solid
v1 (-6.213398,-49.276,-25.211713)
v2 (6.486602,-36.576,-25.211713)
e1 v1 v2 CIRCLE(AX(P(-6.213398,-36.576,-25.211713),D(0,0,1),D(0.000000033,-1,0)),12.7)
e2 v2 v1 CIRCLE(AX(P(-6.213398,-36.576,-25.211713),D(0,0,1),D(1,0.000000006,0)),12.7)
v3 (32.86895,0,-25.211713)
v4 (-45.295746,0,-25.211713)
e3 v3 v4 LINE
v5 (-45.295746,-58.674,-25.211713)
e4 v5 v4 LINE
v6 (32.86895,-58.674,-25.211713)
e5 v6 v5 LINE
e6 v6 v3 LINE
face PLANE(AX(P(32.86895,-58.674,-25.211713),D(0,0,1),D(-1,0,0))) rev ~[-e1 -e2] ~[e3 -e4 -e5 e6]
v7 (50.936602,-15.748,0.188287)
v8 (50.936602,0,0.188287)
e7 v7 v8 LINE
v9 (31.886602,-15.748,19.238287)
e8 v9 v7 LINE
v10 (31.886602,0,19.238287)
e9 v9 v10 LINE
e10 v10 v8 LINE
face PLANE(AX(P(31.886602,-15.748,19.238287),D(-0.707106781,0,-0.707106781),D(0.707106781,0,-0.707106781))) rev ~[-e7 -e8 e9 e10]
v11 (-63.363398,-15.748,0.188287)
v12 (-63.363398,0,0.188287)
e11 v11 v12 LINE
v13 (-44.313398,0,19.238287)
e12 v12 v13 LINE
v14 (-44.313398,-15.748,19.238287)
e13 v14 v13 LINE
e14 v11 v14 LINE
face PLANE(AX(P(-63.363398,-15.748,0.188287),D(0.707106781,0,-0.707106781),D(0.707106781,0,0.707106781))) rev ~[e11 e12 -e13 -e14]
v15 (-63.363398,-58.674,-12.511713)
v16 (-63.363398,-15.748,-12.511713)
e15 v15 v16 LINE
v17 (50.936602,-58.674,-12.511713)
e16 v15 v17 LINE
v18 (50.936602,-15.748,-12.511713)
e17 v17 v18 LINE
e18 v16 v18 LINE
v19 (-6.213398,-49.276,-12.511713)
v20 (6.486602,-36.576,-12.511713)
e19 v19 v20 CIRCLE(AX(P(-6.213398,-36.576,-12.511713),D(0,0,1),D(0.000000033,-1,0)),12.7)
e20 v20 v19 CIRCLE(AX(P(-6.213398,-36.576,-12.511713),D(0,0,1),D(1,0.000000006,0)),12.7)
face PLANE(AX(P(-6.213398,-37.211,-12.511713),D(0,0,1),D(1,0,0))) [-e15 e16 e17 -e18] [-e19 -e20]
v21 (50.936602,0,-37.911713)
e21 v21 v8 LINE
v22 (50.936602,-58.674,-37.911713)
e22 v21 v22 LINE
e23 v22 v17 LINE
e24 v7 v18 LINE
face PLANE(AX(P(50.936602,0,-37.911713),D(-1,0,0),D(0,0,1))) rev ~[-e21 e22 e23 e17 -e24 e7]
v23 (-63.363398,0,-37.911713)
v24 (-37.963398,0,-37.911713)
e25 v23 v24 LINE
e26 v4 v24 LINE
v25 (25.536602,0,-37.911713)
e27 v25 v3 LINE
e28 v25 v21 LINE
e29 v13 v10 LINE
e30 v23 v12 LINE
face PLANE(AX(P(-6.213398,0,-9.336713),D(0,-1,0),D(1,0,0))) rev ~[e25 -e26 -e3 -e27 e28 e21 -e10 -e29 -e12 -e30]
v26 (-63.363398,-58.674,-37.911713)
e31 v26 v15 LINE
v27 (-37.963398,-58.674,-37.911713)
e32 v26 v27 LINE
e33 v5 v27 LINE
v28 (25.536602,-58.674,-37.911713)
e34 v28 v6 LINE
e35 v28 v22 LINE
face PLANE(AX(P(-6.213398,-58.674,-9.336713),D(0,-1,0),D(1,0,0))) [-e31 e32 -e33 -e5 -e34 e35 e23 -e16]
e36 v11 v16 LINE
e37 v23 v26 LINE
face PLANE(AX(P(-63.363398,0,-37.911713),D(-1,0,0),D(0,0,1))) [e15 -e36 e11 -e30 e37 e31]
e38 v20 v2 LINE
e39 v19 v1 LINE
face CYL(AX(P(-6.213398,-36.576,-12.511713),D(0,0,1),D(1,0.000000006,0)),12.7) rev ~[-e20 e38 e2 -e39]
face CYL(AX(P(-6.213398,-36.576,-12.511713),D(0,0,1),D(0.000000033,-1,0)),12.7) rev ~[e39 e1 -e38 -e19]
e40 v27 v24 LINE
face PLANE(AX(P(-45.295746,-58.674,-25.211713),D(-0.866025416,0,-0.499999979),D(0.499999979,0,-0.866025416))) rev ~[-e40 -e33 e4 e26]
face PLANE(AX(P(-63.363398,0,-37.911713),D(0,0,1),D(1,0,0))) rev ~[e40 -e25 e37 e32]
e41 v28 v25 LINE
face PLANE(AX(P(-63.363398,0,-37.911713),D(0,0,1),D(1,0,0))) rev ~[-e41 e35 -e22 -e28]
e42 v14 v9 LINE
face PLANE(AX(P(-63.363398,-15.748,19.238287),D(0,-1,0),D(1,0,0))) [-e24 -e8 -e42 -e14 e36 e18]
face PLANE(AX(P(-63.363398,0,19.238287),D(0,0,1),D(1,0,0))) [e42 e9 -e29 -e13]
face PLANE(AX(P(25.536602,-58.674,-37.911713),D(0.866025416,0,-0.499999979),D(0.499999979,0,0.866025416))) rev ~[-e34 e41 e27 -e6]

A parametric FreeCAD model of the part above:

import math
import FreeCAD as App
import Part
import Sketcher

V = App.Vector
Q = App.Units.Quantity


def add_polygon(sketch, points):
    """Adds a closed chain of lines whose ends are joined by coincident constraints."""
    first, n = sketch.GeometryCount, len(points)
    for a, b in zip(points, points[1:] + points[:1]):
        sketch.addGeometry(Part.LineSegment(App.Vector(*a, 0), App.Vector(*b, 0)), False)
    for i in range(n):
        sketch.addConstraint(Sketcher.Constraint("Coincident", first + i, 2, first + (i + 1) % n, 1))

doc = App.newDocument("Part")
body = doc.addObject("PartDesign::Body", "Body")

# Sketch on XZ plane
sketch1 = body.newObject("Sketcher::SketchObject", "Sketch")
sketch1.AttachmentSupport = (doc.getObject("XZ_Plane"), [""])
sketch1.MapMode = "FlatFace"
add_polygon(sketch1, [(-63, 19), (-63, -38), (51, -38), (51, 19)])  # lines 0-3
sketch1.addConstraint(Sketcher.Constraint("Vertical", 0))
sketch1.addConstraint(Sketcher.Constraint("Horizontal", 1))
sketch1.addConstraint(Sketcher.Constraint("Vertical", 2))
sketch1.addConstraint(Sketcher.Constraint("Horizontal", 3))
sketch1.addConstraint(Sketcher.Constraint("DistanceX", 1, 1, 1, 2, Q("4.5 in")))
sketch1.addConstraint(Sketcher.Constraint("DistanceY", 0, 2, 0, 1, Q("2.25 in")))
sketch1.addConstraint(Sketcher.Constraint("DistanceX", 0, 2, -1, 1, Q("63.363398 mm")))
sketch1.addConstraint(Sketcher.Constraint("DistanceY", 0, 2, -1, 1, Q("37.911713 mm")))
pad1 = body.newObject("PartDesign::Pad", "Pad")
pad1.Profile = sketch1
pad1.Length = Q("2.31 in")

# Sketch on XY plane
sketch2 = body.newObject("Sketcher::SketchObject", "Sketch001")
sketch2.AttachmentSupport = (doc.getObject("XY_Plane"), [""])
sketch2.MapMode = "FlatFace"
sketch2.AttachmentOffset = App.Placement(V(0, 0, 19.238287), App.Rotation())
add_polygon(sketch2, [(-63, -16), (-63, -59), (51, -59), (51, -16)])  # lines 0-3
sketch2.addConstraint(Sketcher.Constraint("Vertical", 0))
sketch2.addConstraint(Sketcher.Constraint("Horizontal", 1))
sketch2.addConstraint(Sketcher.Constraint("Vertical", 2))
sketch2.addConstraint(Sketcher.Constraint("Horizontal", 3))
sketch2.addConstraint(Sketcher.Constraint("DistanceX", 1, 1, 1, 2, Q("4.5 in")))
sketch2.addConstraint(Sketcher.Constraint("DistanceY", 0, 2, 0, 1, Q("1.69 in")))
sketch2.addConstraint(Sketcher.Constraint("DistanceY", 0, 2, -1, 1, Q("2.31 in")))
sketch2.addConstraint(Sketcher.Constraint("DistanceX", 0, 2, -1, 1, Q("63.363398 mm")))
pocket1 = body.newObject("PartDesign::Pocket", "Pocket")
pocket1.Profile = sketch2
pocket1.Length = Q("1.25 in")

# Sketch on XZ plane
sketch3 = body.newObject("Sketcher::SketchObject", "Sketch002")
sketch3.AttachmentSupport = (doc.getObject("XZ_Plane"), [""])
sketch3.MapMode = "FlatFace"
sketch3.AttachmentOffset = App.Placement(V(0, 0, 0.62 * 25.4), App.Rotation())
add_polygon(sketch3, [(51, 19), (32, 19), (51, 0)])  # lines 0-2
add_polygon(sketch3, [(-44, 19), (-63, 19), (-63, 0)])  # lines 3-5
sketch3.addConstraint(Sketcher.Constraint("Horizontal", 0))
sketch3.addConstraint(Sketcher.Constraint("Vertical", 2))
sketch3.addConstraint(Sketcher.Constraint("Horizontal", 3))
sketch3.addConstraint(Sketcher.Constraint("Vertical", 4))
sketch3.addConstraint(Sketcher.Constraint("Perpendicular", 1, 5))
sketch3.addConstraint(Sketcher.Constraint("Horizontal", 2, 2, 3, 2))
sketch3.addConstraint(Sketcher.Constraint("Horizontal", 1, 2, 4, 2))
sketch3.addConstraint(Sketcher.Constraint("Equal", 0, 3))
sketch3.addConstraint(Sketcher.Constraint("DistanceX", 5, 2, 0, 2, Q("3 in")))
sketch3.addConstraint(Sketcher.Constraint("DistanceX", 0, 2, 0, 1, Q("0.75 in")))
sketch3.addConstraint(Sketcher.Constraint("DistanceX", -1, 1, 0, 2, Q("31.886602 mm")))
sketch3.addConstraint(Sketcher.Constraint("DistanceY", -1, 1, 0, 2, Q("19.238287 mm")))
pocket2 = body.newObject("PartDesign::Pocket", "Pocket001")
pocket2.Profile = sketch3
pocket2.Length = Q("0.62 in")

# Sketch on XZ plane
sketch4 = body.newObject("Sketcher::SketchObject", "Sketch003")
sketch4.AttachmentSupport = (doc.getObject("XZ_Plane"), [""])
sketch4.MapMode = "FlatFace"
sketch4.AttachmentOffset = App.Placement(V(0, 0, 2.31 * 25.4), App.Rotation())
add_polygon(sketch4, [(-38, -38), (26, -38), (33, -25), (-45, -25)])  # lines 0-3
sketch4.addConstraint(Sketcher.Constraint("Horizontal", 0))
sketch4.addConstraint(Sketcher.Constraint("Horizontal", 2))
sketch4.addConstraint(Sketcher.Constraint("Equal", 1, 3))
sketch4.addConstraint(Sketcher.Constraint("DistanceX", 0, 1, 0, 2, Q("2.5 in")))
sketch4.addConstraint(Sketcher.Constraint("Angle", 1, Q("60.000001 deg")))
sketch4.addConstraint(Sketcher.Constraint("DistanceY", 0, 2, 1, 2, Q("0.5 in")))
sketch4.addConstraint(Sketcher.Constraint("DistanceX", -1, 1, 0, 2, Q("25.536602 mm")))
sketch4.addConstraint(Sketcher.Constraint("DistanceY", 0, 2, -1, 1, Q("37.911713 mm")))
pocket3 = body.newObject("PartDesign::Pocket", "Pocket002")
pocket3.Profile = sketch4
pocket3.Length = Q("2.31 in")

# Sketch on XY plane
sketch5 = body.newObject("Sketcher::SketchObject", "Sketch004")
sketch5.AttachmentSupport = (doc.getObject("XY_Plane"), [""])
sketch5.MapMode = "FlatFace"
sketch5.AttachmentOffset = App.Placement(V(0, 0, -12.511713), App.Rotation())
sketch5.addGeometry(Part.ArcOfCircle(Part.Circle(V(-6, -37, 0), V(0, 0, 1), 13), math.radians(0), math.radians(270)), False)
sketch5.addGeometry(Part.ArcOfCircle(Part.Circle(V(-6, -37, 0), V(0, 0, 1), 13), math.radians(-90), math.radians(0)), False)
sketch5.addConstraint(Sketcher.Constraint("Tangent", 0, 1, 1, 2))
sketch5.addConstraint(Sketcher.Constraint("Coincident", 1, 1, 0, 2))
sketch5.addConstraint(Sketcher.Constraint("Horizontal", 1, 3, 0, 1))
sketch5.addConstraint(Sketcher.Constraint("Vertical", 0, 3, 1, 1))
sketch5.addConstraint(Sketcher.Constraint("Radius", 0, Q("0.5 in")))
sketch5.addConstraint(Sketcher.Constraint("DistanceY", 0, 3, -1, 1, Q("1.44 in")))
sketch5.addConstraint(Sketcher.Constraint("DistanceX", 1, 3, -1, 1, Q("6.213398 mm")))
pocket4 = body.newObject("PartDesign::Pocket", "Pocket003")
pocket4.Profile = sketch5
pocket4.Length = Q("0.5 in")

doc.recompute()
